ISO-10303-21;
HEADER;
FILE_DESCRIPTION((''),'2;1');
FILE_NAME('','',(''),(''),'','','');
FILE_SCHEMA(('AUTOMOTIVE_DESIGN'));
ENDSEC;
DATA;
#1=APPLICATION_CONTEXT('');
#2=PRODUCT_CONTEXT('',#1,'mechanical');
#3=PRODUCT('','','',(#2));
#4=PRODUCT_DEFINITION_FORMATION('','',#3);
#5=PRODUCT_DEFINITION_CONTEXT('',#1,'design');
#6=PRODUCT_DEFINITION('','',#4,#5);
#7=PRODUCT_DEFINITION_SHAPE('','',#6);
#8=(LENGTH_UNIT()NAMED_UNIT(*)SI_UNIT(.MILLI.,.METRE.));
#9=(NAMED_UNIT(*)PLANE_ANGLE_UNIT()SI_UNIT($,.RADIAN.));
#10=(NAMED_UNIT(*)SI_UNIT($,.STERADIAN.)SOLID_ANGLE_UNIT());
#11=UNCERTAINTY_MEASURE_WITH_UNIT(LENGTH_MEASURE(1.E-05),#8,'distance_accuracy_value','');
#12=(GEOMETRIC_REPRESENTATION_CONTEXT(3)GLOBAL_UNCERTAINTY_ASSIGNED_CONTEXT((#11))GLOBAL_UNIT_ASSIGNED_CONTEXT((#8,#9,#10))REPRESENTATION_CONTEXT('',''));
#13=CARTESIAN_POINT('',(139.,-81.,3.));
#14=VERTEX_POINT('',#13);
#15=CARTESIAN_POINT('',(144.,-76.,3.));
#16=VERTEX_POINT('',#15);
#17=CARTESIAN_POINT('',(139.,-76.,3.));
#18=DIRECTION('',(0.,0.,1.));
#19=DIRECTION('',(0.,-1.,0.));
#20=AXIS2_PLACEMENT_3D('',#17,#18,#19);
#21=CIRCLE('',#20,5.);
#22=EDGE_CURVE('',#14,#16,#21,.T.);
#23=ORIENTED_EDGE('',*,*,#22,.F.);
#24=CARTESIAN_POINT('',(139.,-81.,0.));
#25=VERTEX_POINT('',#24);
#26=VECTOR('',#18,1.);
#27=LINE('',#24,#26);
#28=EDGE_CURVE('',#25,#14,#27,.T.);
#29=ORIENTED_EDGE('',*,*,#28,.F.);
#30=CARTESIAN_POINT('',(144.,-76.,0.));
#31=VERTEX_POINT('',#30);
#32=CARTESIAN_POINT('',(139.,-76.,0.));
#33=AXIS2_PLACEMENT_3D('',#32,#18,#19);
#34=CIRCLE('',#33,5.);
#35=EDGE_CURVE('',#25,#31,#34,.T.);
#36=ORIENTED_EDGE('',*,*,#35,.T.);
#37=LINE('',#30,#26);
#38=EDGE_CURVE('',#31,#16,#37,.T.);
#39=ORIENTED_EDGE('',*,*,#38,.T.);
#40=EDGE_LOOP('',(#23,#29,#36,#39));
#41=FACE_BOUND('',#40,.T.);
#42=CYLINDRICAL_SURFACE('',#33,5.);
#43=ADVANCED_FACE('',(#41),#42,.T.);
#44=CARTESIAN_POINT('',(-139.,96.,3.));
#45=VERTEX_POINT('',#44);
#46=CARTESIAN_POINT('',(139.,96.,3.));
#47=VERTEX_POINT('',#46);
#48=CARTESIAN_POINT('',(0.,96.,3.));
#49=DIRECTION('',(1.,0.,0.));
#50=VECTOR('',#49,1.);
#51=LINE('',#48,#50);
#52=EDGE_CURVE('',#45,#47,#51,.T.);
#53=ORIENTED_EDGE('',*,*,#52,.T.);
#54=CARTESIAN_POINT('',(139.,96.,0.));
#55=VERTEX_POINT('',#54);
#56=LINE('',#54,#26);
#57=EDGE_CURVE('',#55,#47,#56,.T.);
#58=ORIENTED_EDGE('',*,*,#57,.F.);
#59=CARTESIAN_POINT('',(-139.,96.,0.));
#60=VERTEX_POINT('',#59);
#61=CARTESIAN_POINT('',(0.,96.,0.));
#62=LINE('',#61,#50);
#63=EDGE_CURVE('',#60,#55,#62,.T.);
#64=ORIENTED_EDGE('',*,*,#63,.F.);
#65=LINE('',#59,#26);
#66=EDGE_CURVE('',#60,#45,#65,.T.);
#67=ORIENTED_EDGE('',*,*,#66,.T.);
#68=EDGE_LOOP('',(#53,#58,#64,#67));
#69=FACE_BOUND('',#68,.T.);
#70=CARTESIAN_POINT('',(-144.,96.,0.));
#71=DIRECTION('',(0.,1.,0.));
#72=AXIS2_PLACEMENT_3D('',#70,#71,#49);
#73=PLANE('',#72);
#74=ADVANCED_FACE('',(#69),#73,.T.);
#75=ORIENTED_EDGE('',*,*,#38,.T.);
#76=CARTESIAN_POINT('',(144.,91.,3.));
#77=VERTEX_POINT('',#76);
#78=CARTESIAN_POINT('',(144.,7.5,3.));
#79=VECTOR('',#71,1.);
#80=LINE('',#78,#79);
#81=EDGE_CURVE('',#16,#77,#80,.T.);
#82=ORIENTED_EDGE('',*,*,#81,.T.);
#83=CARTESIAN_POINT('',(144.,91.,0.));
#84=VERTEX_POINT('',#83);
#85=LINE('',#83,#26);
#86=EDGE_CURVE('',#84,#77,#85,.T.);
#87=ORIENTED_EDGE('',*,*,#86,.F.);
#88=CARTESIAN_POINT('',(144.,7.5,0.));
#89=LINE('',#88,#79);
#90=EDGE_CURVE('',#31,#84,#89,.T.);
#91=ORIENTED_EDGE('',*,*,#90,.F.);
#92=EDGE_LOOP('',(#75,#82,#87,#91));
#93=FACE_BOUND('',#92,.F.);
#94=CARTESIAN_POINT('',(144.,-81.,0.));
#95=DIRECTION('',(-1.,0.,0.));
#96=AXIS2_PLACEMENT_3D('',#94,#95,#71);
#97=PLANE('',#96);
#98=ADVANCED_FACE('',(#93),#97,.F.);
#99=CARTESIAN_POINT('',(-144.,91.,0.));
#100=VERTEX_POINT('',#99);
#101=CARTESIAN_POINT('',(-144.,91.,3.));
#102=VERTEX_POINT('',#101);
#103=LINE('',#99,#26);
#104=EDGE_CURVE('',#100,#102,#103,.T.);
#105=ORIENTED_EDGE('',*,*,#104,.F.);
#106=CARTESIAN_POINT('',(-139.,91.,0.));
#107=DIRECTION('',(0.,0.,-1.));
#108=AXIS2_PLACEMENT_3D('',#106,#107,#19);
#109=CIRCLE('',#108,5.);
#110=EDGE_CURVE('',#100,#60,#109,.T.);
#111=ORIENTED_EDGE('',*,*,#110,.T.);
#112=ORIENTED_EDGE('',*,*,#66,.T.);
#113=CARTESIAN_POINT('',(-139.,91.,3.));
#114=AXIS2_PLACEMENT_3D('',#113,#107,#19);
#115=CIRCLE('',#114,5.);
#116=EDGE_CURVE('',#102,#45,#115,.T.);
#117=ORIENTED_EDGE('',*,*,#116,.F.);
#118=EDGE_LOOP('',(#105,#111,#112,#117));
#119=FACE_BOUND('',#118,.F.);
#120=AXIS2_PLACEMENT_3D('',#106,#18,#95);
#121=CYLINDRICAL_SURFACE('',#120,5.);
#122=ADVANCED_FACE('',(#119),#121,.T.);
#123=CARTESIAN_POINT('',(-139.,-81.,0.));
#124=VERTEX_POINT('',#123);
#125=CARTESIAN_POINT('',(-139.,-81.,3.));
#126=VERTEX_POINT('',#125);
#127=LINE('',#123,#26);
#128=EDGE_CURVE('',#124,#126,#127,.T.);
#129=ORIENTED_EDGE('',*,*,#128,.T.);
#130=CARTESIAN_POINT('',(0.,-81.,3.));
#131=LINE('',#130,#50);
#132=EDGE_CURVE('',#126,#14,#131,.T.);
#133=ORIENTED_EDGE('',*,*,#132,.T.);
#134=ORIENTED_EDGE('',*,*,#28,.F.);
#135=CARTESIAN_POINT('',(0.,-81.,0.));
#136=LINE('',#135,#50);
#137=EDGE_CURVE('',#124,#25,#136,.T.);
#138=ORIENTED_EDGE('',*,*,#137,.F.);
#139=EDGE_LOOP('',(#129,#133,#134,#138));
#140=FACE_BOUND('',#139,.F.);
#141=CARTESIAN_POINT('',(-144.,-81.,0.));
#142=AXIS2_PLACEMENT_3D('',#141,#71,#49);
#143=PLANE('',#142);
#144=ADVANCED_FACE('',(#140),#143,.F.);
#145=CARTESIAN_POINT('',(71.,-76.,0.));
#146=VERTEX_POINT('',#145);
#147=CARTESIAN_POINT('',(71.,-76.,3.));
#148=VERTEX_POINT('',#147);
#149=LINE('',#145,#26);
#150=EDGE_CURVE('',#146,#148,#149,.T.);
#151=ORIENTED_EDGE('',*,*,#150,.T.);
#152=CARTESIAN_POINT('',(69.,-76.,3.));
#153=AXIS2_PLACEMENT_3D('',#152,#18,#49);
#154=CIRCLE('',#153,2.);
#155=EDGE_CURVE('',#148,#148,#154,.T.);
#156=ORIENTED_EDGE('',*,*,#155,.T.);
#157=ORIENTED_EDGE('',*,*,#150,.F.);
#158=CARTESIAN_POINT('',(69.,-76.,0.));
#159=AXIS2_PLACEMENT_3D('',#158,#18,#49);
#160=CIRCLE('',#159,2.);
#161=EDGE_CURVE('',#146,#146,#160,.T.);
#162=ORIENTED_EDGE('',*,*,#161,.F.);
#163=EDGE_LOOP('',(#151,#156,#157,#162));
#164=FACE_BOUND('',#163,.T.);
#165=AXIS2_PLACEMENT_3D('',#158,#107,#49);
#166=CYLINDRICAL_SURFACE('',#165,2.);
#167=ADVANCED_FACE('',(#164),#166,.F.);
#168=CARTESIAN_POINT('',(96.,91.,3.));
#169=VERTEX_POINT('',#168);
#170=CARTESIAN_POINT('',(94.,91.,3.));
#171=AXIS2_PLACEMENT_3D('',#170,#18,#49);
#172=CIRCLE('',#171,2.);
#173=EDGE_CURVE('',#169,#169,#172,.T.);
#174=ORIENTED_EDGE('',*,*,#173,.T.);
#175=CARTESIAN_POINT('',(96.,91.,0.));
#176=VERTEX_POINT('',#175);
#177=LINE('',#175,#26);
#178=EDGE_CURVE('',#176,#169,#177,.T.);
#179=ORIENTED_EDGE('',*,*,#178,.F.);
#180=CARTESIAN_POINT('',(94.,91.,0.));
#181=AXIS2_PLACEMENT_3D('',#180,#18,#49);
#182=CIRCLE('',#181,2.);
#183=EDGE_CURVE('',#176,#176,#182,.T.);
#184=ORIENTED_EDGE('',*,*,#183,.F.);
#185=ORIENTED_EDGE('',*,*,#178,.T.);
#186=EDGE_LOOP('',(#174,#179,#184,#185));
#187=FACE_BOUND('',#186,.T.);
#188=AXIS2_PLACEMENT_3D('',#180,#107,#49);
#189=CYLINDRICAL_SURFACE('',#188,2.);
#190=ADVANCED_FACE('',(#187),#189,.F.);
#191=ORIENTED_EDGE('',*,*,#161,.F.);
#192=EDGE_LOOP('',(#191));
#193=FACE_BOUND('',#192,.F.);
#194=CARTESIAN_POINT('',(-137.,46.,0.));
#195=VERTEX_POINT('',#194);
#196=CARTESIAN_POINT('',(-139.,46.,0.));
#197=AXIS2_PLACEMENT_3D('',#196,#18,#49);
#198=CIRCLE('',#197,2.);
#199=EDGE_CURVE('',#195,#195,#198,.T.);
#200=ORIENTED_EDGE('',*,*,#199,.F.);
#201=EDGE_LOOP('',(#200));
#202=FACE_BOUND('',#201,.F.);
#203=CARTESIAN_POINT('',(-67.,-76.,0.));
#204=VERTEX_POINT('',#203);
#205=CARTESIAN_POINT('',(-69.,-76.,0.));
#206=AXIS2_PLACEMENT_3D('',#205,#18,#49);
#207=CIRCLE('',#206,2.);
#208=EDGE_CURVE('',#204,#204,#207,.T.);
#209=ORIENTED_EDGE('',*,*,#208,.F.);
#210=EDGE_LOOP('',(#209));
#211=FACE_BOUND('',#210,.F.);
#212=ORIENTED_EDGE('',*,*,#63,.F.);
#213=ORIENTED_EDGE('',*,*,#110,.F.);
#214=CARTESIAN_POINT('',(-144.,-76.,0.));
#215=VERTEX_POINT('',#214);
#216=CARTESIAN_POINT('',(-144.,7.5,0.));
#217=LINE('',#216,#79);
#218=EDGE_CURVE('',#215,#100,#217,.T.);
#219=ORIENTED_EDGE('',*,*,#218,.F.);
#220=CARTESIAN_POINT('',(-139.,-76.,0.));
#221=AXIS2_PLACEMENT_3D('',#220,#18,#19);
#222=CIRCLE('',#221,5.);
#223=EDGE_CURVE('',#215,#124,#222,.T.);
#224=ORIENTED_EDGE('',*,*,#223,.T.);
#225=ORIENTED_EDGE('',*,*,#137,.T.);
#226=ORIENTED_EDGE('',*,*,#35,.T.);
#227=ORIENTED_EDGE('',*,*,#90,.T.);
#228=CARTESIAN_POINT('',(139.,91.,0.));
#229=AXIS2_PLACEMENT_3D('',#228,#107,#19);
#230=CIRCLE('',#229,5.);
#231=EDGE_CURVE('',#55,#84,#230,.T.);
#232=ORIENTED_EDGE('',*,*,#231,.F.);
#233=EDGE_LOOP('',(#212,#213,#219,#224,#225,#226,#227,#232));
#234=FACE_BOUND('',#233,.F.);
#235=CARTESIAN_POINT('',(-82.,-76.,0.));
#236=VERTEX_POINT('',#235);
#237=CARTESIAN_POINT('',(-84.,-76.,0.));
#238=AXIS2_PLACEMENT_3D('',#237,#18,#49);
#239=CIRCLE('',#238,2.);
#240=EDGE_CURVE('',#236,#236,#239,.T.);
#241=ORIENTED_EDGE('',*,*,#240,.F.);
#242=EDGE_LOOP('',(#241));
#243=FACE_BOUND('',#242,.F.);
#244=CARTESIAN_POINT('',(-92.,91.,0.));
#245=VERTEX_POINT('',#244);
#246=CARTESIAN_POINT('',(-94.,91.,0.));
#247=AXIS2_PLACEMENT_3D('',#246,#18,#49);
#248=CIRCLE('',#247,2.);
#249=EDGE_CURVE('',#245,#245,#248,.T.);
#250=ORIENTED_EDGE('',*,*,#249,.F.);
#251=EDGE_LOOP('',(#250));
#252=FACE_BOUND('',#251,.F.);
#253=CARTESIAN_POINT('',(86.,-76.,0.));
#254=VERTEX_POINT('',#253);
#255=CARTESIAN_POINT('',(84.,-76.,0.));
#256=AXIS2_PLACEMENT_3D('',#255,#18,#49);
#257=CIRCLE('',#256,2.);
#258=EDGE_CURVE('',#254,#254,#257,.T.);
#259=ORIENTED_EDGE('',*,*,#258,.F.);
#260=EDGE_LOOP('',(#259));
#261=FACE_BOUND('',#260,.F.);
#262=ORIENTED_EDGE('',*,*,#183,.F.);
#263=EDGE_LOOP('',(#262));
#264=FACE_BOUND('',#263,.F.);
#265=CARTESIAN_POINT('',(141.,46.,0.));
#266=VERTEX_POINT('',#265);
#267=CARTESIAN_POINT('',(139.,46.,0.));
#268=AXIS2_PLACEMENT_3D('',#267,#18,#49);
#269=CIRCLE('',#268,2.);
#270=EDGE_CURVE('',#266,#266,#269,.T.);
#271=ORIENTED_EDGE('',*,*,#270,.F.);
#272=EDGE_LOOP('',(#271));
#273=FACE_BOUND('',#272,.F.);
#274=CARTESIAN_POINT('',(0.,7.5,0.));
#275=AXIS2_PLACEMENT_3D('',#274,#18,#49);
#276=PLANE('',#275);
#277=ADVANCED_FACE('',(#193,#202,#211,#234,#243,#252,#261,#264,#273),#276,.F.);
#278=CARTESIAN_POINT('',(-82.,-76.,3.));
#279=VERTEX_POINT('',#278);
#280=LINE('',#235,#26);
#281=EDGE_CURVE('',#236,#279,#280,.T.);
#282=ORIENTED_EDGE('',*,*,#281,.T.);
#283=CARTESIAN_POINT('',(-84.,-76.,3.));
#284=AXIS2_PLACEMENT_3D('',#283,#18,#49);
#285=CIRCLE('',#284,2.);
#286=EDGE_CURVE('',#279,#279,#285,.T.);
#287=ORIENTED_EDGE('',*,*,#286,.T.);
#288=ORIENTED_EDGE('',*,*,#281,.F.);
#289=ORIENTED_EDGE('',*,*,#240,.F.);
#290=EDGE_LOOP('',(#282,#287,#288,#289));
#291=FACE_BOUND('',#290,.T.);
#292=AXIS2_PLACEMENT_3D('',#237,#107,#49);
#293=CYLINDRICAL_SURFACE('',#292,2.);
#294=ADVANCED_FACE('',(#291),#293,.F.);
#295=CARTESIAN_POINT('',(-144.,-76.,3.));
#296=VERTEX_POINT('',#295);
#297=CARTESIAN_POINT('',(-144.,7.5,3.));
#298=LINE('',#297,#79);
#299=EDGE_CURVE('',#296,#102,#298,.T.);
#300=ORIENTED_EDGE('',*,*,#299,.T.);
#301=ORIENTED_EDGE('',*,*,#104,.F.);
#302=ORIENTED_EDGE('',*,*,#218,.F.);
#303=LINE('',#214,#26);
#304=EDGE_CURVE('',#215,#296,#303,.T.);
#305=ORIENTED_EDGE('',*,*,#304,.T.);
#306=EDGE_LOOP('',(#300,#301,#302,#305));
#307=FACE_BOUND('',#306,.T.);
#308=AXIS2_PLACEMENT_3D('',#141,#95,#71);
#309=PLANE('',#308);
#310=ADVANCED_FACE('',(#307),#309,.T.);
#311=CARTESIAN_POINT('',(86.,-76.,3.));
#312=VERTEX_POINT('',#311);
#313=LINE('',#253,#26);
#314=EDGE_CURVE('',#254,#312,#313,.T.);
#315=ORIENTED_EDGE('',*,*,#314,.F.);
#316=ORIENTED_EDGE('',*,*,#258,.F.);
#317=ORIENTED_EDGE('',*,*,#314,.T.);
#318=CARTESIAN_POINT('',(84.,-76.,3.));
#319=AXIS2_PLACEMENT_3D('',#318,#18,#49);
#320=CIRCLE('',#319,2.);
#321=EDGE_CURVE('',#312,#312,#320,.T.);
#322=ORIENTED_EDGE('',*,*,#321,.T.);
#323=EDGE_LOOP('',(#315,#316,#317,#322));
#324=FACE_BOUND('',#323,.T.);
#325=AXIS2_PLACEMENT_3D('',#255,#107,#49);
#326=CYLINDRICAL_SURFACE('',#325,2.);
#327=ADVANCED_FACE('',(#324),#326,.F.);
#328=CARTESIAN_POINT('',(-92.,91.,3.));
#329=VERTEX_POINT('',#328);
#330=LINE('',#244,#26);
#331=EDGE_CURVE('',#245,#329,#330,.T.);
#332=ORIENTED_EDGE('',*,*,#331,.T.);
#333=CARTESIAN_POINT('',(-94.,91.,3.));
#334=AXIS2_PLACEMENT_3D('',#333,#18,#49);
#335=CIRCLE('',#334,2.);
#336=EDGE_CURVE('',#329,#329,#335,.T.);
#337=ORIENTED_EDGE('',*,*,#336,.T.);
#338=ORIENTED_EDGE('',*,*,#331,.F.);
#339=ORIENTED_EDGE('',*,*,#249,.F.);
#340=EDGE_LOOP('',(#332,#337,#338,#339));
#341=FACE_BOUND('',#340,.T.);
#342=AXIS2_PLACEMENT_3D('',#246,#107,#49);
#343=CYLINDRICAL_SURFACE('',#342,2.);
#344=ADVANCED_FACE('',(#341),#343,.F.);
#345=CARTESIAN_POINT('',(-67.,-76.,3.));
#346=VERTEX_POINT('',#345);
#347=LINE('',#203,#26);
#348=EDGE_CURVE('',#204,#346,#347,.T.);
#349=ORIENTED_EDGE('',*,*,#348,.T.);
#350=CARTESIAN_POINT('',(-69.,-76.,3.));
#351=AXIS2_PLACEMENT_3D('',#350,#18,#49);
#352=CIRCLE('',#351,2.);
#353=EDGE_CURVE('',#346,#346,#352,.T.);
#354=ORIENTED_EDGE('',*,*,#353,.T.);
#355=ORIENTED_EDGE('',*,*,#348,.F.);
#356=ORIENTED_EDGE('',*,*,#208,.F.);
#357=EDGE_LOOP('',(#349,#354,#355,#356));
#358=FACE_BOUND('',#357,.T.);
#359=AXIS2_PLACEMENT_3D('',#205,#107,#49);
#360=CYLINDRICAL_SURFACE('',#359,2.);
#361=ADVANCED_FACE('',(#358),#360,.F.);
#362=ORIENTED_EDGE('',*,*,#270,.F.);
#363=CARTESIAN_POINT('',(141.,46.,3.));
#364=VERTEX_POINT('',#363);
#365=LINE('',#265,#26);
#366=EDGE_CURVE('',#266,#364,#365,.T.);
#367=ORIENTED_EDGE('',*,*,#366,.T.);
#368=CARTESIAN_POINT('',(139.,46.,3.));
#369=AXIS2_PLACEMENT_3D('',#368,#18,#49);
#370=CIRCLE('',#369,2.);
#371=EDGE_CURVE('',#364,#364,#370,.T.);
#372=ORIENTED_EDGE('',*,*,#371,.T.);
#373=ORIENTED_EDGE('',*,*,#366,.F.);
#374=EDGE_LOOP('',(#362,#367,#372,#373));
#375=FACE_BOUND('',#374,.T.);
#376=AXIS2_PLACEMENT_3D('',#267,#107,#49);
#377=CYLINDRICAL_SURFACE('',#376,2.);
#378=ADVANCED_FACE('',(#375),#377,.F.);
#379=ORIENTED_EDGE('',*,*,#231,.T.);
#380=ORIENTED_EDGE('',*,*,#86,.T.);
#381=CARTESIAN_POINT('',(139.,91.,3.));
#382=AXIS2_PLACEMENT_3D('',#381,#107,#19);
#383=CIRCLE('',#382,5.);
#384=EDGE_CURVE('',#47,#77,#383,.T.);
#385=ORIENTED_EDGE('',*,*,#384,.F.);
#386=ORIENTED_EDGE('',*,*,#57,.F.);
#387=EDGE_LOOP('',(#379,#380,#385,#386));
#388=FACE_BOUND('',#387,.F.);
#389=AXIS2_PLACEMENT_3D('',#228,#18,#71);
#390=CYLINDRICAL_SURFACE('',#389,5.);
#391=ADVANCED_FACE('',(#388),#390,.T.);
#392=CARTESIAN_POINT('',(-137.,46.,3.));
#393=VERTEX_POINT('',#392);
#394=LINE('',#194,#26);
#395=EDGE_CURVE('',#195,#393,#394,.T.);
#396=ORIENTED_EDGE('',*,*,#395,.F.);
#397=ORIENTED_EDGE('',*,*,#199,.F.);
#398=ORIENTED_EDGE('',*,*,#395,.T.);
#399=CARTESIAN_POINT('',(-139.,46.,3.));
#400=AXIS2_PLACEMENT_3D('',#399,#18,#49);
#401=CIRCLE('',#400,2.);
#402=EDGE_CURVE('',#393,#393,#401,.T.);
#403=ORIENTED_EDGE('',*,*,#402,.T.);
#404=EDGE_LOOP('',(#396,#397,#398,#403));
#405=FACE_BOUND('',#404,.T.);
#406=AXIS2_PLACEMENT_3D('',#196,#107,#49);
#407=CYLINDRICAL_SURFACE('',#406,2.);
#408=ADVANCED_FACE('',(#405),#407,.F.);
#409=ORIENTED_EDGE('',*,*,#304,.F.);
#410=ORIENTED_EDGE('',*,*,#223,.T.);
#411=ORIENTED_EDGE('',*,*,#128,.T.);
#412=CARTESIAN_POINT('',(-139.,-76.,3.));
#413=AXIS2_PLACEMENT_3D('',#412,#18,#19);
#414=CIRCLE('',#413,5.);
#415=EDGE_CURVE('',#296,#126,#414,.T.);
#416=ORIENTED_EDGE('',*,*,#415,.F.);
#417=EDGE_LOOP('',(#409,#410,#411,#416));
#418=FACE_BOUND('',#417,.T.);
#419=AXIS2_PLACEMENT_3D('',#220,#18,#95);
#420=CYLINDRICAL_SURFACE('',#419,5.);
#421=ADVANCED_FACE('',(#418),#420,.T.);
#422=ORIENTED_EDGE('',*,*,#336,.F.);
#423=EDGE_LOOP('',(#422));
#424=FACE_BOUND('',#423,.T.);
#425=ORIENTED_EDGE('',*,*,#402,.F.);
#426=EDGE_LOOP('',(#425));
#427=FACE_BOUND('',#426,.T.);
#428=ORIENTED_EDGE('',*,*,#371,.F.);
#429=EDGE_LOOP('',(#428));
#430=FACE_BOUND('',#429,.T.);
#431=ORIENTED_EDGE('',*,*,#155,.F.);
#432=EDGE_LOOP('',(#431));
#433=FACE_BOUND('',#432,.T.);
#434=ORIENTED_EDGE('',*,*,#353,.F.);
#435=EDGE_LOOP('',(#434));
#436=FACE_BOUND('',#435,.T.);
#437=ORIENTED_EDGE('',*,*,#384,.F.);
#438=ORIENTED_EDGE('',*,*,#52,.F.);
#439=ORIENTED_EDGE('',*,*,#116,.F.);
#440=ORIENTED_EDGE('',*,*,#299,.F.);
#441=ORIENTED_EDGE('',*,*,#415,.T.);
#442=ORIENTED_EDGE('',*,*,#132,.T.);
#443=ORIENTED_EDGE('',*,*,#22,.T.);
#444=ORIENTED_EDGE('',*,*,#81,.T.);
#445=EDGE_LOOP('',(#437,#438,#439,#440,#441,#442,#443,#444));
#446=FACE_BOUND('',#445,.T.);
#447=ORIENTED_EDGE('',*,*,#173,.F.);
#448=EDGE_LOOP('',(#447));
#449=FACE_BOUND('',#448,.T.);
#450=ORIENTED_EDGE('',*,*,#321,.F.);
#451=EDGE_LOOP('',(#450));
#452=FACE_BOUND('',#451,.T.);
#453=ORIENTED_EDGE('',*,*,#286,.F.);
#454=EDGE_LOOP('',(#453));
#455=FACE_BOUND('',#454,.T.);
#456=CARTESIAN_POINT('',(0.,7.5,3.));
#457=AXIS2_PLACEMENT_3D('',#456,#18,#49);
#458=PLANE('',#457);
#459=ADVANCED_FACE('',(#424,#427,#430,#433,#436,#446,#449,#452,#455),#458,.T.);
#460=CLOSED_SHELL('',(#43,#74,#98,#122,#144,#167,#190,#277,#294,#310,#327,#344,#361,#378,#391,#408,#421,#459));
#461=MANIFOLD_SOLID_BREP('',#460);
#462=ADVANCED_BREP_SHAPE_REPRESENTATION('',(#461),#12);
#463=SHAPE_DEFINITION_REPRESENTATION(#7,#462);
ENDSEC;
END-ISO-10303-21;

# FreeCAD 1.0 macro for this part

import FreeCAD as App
import Part
import Sketcher

V = App.Vector


def edges_at(feature, points):
    """Names of the edges that pass closest to the given points."""
    edges = feature.Shape.Edges
    near = lambda p: min(range(len(edges)), key=lambda i: edges[i].distToShape(Part.Vertex(*p))[0])
    return sorted({f"Edge{near(p) + 1}" for p in points})


def add_polygon(sketch, points):
    """Adds a closed chain of lines whose ends are joined by coincident constraints."""
    first, n = sketch.GeometryCount, len(points)
    for a, b in zip(points, points[1:] + points[:1]):
        sketch.addGeometry(Part.LineSegment(App.Vector(*a, 0), App.Vector(*b, 0)), False)
    for i in range(n):
        sketch.addConstraint(Sketcher.Constraint("Coincident", first + i, 2, first + (i + 1) % n, 1))

doc = App.newDocument("Part")
body = doc.addObject("PartDesign::Body", "Body")

# Sketch on XY plane
sketch1 = body.newObject("Sketcher::SketchObject", "Sketch")
sketch1.AttachmentSupport = (doc.getObject("XY_Plane"), [""])
sketch1.MapMode = "FlatFace"
add_polygon(sketch1, [(-144, 96), (-144, -81), (144, -81), (144, 96)])  # lines 0-3
sketch1.addGeometry(Part.Circle(V(-84, -76, 0), V(0, 0, 1), 2), False)  # 4
sketch1.addGeometry(Part.Circle(V(-69, -76, 0), V(0, 0, 1), 2), False)  # 5
sketch1.addGeometry(Part.Circle(V(69, -76, 0), V(0, 0, 1), 2), False)  # 6
sketch1.addGeometry(Part.Circle(V(84, -76, 0), V(0, 0, 1), 2), False)  # 7
sketch1.addGeometry(Part.Circle(V(-139, 46, 0), V(0, 0, 1), 2), False)  # 8
sketch1.addGeometry(Part.Circle(V(-94, 91, 0), V(0, 0, 1), 2), False)  # 9
sketch1.addGeometry(Part.Circle(V(139, 46, 0), V(0, 0, 1), 2), False)  # 10
sketch1.addGeometry(Part.Circle(V(94, 91, 0), V(0, 0, 1), 2), False)  # 11
sketch1.addConstraint([
    Sketcher.Constraint("Vertical", 0),
    Sketcher.Constraint("Horizontal", 1),
    Sketcher.Constraint("Vertical", 2),
    Sketcher.Constraint("Horizontal", 3),
    Sketcher.Constraint("Equal", 4, 5),
    Sketcher.Constraint("Equal", 5, 6),
    Sketcher.Constraint("Equal", 6, 7),
    Sketcher.Constraint("Equal", 7, 8),
    Sketcher.Constraint("Equal", 8, 9),
    Sketcher.Constraint("Equal", 9, 10),
    Sketcher.Constraint("Equal", 10, 11),
    Sketcher.Constraint("Symmetric", 5, 3, 6, 3, -2),
    Sketcher.Constraint("Symmetric", 4, 3, 7, 3, -2),
    Sketcher.Constraint("Symmetric", 8, 3, 10, 3, -2),
    Sketcher.Constraint("Symmetric", 9, 3, 11, 3, -2),
    Sketcher.Constraint("Horizontal", 4, 3, 5, 3),
    Sketcher.Constraint("Diameter", 4, 4.0),
    Sketcher.Constraint("DistanceX", 1, 1, 1, 2, 288.0),
    Sketcher.Constraint("DistanceY", 0, 2, 0, 1, 177.0),
    Sketcher.Constraint("DistanceX", 4, 3, -1, 1, 84.0),
    Sketcher.Constraint("DistanceY", 4, 3, -1, 1, 76.0),
    Sketcher.Constraint("DistanceX", 5, 3, -1, 1, 69.0),
    Sketcher.Constraint("DistanceX", 8, 3, -1, 1, 139.0),
    Sketcher.Constraint("DistanceY", -1, 1, 8, 3, 46.0),
    Sketcher.Constraint("DistanceX", 9, 3, -1, 1, 94.0),
    Sketcher.Constraint("DistanceY", -1, 1, 9, 3, 91.0),
    Sketcher.Constraint("DistanceX", 0, 2, -1, 1, 144.0),
    Sketcher.Constraint("DistanceY", 0, 2, -1, 1, 81.0),
])
pad1 = body.newObject("PartDesign::Pad", "Pad")
pad1.Profile = sketch1
pad1.Length = 3
doc.recompute()

fillet = body.newObject("PartDesign::Fillet", "Fillet")
fillet.Base = (pad1, edges_at(pad1, [
    (-144, 96, 1.5),
    (144, 96, 1.5),
    (144, -81, 1.5),
    (-144, -81, 1.5),
]))
fillet.Radius = 5

doc.recompute()
